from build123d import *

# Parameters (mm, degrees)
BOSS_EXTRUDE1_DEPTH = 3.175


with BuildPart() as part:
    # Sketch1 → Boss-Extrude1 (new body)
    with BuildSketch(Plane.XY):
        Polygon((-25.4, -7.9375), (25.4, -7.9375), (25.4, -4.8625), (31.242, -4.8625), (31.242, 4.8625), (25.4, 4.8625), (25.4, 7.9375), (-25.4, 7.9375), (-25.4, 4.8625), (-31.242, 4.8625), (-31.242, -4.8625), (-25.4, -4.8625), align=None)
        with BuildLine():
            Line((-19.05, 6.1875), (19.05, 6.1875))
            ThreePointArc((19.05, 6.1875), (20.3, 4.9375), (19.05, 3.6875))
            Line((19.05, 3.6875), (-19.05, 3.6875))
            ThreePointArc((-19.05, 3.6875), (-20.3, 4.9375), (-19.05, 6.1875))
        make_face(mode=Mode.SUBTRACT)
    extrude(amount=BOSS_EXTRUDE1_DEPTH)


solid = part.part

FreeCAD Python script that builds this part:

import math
import FreeCAD as App
import Part
import Sketcher
from FreeCAD import Vector
Q = App.Units.Quantity


def add_polygon(sketch, points):
    """Adds a closed chain of lines whose ends are joined by coincident constraints."""
    first, n = sketch.GeometryCount, len(points)
    for a, b in zip(points, points[1:] + points[:1]):
        sketch.addGeometry(Part.LineSegment(App.Vector(*a, 0), App.Vector(*b, 0)), False)
    for i in range(n):
        sketch.addConstraint(Sketcher.Constraint("Coincident", first + i, 2, first + (i + 1) % n, 1))

doc = App.newDocument("Part")
body = doc.addObject("PartDesign::Body", "Body")

# Sketch on XY plane
sketch1 = body.newObject("Sketcher::SketchObject", "Sketch")
sketch1.AttachmentSupport = (doc.getObject("XY_Plane"), [""])
sketch1.MapMode = "FlatFace"
add_polygon(sketch1, [(-25.4, -7.9), (25.4, -7.9), (25.4, -4.9), (31.2, -4.9), (31.2, 4.9), (25.4, 4.9), (25.4, 7.9), (-25.4, 7.9), (-25.4, 4.9), (-31.2, 4.9), (-31.2, -4.9), (-25.4, -4.9)])  # lines 0-11
sketch1.addGeometry(Part.ArcOfCircle(Part.Circle(Vector(-19.1, 4.9, 0), Vector(0, 0, 1), 1.2), math.radians(90), math.radians(270)), False)  # 12
sketch1.addGeometry(Part.LineSegment(Vector(-19.1, 6.2, 0), Vector(19.1, 6.2, 0)), False)  # 13
sketch1.addGeometry(Part.ArcOfCircle(Part.Circle(Vector(19.1, 4.9, 0), Vector(0, 0, 1), 1.2), math.radians(-90), math.radians(90)), False)  # 14
sketch1.addGeometry(Part.LineSegment(Vector(19.1, 3.7, 0), Vector(-19.1, 3.7, 0)), False)  # 15
sketch1.addConstraint(Sketcher.Constraint("Tangent", 12, 1, 13, 1))
sketch1.addConstraint(Sketcher.Constraint("Tangent", 13, 2, 14, 2))
sketch1.addConstraint(Sketcher.Constraint("Tangent", 14, 1, 15, 1))
sketch1.addConstraint(Sketcher.Constraint("Tangent", 15, 2, 12, 2))
sketch1.addConstraint(Sketcher.Constraint("Horizontal", 0))
sketch1.addConstraint(Sketcher.Constraint("Vertical", 1))
sketch1.addConstraint(Sketcher.Constraint("Horizontal", 2))
sketch1.addConstraint(Sketcher.Constraint("Vertical", 3))
sketch1.addConstraint(Sketcher.Constraint("Horizontal", 4))
sketch1.addConstraint(Sketcher.Constraint("Vertical", 5))
sketch1.addConstraint(Sketcher.Constraint("Horizontal", 6))
sketch1.addConstraint(Sketcher.Constraint("Vertical", 7))
sketch1.addConstraint(Sketcher.Constraint("Horizontal", 8))
sketch1.addConstraint(Sketcher.Constraint("Vertical", 9))
sketch1.addConstraint(Sketcher.Constraint("Horizontal", 10))
sketch1.addConstraint(Sketcher.Constraint("Vertical", 11))
sketch1.addConstraint(Sketcher.Constraint("Horizontal", 13))
sketch1.addConstraint(Sketcher.Constraint("Horizontal", 15))
sketch1.addConstraint(Sketcher.Constraint("Symmetric", 0, 2, 6, 2, -1, 1))
sketch1.addConstraint(Sketcher.Constraint("Symmetric", 2, 2, 8, 2, -1, 1))
sketch1.addConstraint(Sketcher.Constraint("Symmetric", 4, 2, 10, 2, -1, 1))
sketch1.addConstraint(Sketcher.Constraint("Symmetric", 4, 2, 7, 2, -2))
sketch1.addConstraint(Sketcher.Constraint("DistanceX", 0, 1, 0, 2, Q("2 in")))
sketch1.addConstraint(Sketcher.Constraint("DistanceX", 13, 1, 13, 2, Q("1.5 in")))
sketch1.addConstraint(Sketcher.Constraint("DistanceX", 2, 1, 2, 2, Q("0.23 in")))
sketch1.addConstraint(Sketcher.Constraint("DistanceX", 12, 3, -1, 1, Q("0.75 in")))
sketch1.addConstraint(Sketcher.Constraint("Radius", 12, 1.25))
sketch1.addConstraint(Sketcher.Constraint("DistanceY", 0, 2, -1, 1, Q("0.3125 in")))
sketch1.addConstraint(Sketcher.Constraint("DistanceY", 1, 1, 1, 2, 3.075))
sketch1.addConstraint(Sketcher.Constraint("DistanceY", -1, 1, 12, 3, 4.9375))
pad1 = body.newObject("PartDesign::Pad", "Pad")
pad1.Profile = sketch1
pad1.Length = Q("0.125 in")

doc.recompute()
